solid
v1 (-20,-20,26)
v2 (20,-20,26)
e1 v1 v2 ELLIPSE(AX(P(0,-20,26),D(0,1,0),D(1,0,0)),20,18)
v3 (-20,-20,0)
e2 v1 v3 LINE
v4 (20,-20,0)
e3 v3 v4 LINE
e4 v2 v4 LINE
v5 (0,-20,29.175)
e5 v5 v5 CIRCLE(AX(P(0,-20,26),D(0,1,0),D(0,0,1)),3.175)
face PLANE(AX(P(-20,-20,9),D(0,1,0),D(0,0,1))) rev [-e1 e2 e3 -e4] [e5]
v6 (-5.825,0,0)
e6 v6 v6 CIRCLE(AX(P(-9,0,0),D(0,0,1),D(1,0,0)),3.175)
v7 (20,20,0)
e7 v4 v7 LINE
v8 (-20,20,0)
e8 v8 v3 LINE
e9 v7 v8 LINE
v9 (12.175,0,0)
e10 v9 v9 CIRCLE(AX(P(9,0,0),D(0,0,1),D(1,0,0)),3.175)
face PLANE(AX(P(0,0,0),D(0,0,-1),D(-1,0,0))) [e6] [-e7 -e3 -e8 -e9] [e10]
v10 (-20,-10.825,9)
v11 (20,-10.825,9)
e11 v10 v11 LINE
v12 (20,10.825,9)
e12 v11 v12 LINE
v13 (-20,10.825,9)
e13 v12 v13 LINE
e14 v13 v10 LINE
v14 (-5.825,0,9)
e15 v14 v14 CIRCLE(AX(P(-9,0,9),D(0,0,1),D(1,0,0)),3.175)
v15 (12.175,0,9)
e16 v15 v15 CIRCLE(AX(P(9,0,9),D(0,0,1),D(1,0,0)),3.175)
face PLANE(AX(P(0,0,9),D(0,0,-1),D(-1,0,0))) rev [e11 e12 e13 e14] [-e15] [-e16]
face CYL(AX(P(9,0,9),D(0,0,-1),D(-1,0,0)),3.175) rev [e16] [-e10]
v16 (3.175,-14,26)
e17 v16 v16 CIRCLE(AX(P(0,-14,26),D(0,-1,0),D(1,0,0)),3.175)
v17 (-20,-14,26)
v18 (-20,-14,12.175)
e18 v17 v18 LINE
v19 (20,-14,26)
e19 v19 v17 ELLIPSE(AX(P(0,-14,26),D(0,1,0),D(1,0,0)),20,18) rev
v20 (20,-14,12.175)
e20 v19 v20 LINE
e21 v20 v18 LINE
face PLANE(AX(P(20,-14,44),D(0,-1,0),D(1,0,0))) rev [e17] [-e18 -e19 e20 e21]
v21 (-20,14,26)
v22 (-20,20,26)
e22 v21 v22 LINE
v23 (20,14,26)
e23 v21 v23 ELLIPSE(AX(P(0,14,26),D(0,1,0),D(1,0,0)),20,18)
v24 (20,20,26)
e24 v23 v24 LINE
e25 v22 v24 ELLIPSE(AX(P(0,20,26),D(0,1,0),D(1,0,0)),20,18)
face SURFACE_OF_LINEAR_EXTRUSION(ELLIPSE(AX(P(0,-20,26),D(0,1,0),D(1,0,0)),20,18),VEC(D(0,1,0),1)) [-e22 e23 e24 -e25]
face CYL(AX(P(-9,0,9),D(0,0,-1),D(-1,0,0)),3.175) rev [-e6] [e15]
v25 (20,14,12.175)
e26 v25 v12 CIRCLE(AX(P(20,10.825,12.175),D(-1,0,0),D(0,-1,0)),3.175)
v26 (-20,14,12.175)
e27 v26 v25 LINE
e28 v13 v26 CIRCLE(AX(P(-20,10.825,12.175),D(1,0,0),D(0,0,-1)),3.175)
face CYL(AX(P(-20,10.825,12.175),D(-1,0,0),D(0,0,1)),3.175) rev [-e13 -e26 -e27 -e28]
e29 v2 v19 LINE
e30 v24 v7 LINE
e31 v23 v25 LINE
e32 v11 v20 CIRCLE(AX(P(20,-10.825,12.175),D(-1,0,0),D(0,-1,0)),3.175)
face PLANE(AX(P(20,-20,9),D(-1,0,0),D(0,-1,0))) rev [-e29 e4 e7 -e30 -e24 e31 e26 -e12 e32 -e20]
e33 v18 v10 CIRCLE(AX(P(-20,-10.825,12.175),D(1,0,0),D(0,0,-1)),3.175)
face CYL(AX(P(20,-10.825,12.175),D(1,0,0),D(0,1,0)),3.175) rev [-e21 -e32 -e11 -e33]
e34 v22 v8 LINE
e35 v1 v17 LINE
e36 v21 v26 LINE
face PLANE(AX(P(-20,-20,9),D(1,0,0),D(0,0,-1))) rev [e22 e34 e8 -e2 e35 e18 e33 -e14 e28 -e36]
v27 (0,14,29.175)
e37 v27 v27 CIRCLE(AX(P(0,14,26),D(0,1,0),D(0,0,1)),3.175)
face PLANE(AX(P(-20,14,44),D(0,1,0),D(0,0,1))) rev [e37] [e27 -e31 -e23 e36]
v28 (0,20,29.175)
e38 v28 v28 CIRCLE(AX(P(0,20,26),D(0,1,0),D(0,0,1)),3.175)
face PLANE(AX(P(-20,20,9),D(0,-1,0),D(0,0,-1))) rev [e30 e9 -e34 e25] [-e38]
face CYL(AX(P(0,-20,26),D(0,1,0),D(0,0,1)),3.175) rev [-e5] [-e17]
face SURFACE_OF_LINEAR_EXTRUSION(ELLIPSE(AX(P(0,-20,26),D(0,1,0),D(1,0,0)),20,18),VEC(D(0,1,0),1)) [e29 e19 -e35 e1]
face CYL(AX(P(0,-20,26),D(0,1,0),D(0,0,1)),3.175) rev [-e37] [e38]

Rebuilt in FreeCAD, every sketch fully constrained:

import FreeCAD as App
import Part
import Sketcher

V = App.Vector


def edges_at(feature, points):
    """Names of the edges that pass closest to the given points."""
    edges = feature.Shape.Edges
    near = lambda p: min(range(len(edges)), key=lambda i: edges[i].distToShape(Part.Vertex(*p))[0])
    return sorted({f"Edge{near(p) + 1}" for p in points})


def add_polygon(sketch, points):
    """Adds a closed chain of lines whose ends are joined by coincident constraints."""
    first, n = sketch.GeometryCount, len(points)
    for a, b in zip(points, points[1:] + points[:1]):
        sketch.addGeometry(Part.LineSegment(App.Vector(*a, 0), App.Vector(*b, 0)), False)
    for i in range(n):
        sketch.addConstraint(Sketcher.Constraint("Coincident", first + i, 2, first + (i + 1) % n, 1))

doc = App.newDocument("Part")
params = doc.addObject("Spreadsheet::Sheet", "Params")
for row, (alias, value) in enumerate([
    ("sketch1_diameter", "6.35 mm"),
    ("sketch1_width", "40 mm"),
    ("pad1_length", "9 mm"),
    ("sketch2_width", "40 mm"),
    ("sketch2_height", "6 mm"),
    ("pad2_length", "35 mm"),
    ("fillet_radius", "3.175 mm"),
    ("sketch3_diameter", "6.35 mm"),
], start=1):
    params.set(f"A{row}", alias)
    params.set(f"B{row}", "=" + value)
    params.setAlias(f"B{row}", alias)

body = doc.addObject("PartDesign::Body", "Body")

# Sketch on XY plane
sketch1 = body.newObject("Sketcher::SketchObject", "Sketch")
sketch1.AttachmentSupport = (doc.getObject("XY_Plane"), [""])
sketch1.MapMode = "FlatFace"
add_polygon(sketch1, [(-20, 20), (-20, -20), (20, -20), (20, 20)])  # lines 0-3
sketch1.addGeometry(Part.Circle(V(-9, 0, 0), V(0, 0, 1), 3.175), False)  # 4
sketch1.addGeometry(Part.Circle(V(9, 0, 0), V(0, 0, 1), 3.175), False)  # 5
sketch1.addConstraint([
    Sketcher.Constraint("Vertical", 0),
    Sketcher.Constraint("Horizontal", 1),
    Sketcher.Constraint("Vertical", 2),
    Sketcher.Constraint("Horizontal", 3),
    Sketcher.Constraint("Equal", 4, 5),
    Sketcher.Constraint("Symmetric", 4, 3, 5, 3, -1, 1),
    Sketcher.Constraint("Symmetric", 0, 2, 2, 2, -1, 1),
    Sketcher.Constraint("PointOnObject", 4, 3, -1),
    Sketcher.Constraint("Equal", 3, 0),
    Sketcher.Constraint("Diameter", 4, 6.35),
    Sketcher.Constraint("DistanceX", 1, 1, 1, 2, 40.0),
    Sketcher.Constraint("DistanceX", 4, 3, -1, 1, 9.0),
])
sketch1.setExpression("Constraints[13]", "Params.sketch1_diameter")
sketch1.setExpression("Constraints[14]", "Params.sketch1_width")
pad1 = body.newObject("PartDesign::Pad", "Pad")
pad1.Profile = sketch1
pad1.setExpression("Length", "Params.pad1_length")

# Sketch on XY plane
sketch2 = body.newObject("Sketcher::SketchObject", "Sketch001")
sketch2.AttachmentSupport = (doc.getObject("XY_Plane"), [""])
sketch2.MapMode = "FlatFace"
sketch2.AttachmentOffset = App.Placement(V(0, 0, 9), App.Rotation())
add_polygon(sketch2, [(-20, 20), (-20, 14), (20, 14), (20, 20)])  # lines 0-3
add_polygon(sketch2, [(-20, -14), (-20, -20), (20, -20), (20, -14)])  # lines 4-7
sketch2.addConstraint([
    Sketcher.Constraint("Vertical", 0),
    Sketcher.Constraint("Horizontal", 1),
    Sketcher.Constraint("Vertical", 2),
    Sketcher.Constraint("Horizontal", 3),
    Sketcher.Constraint("Vertical", 4),
    Sketcher.Constraint("Horizontal", 5),
    Sketcher.Constraint("Vertical", 6),
    Sketcher.Constraint("Horizontal", 7),
    Sketcher.Constraint("Symmetric", 2, 2, 4, 2, -1, 1),
    Sketcher.Constraint("Symmetric", 0, 2, 6, 2, -1, 1),
    Sketcher.Constraint("Vertical", 3, 2, 4, 2),
    Sketcher.Constraint("DistanceX", 1, 1, 1, 2, 40.0),
    Sketcher.Constraint("DistanceY", 0, 2, 0, 1, 6.0),
    Sketcher.Constraint("DistanceY", -1, 1, 0, 2, 14.0),
])
sketch2.setExpression("Constraints[19]", "Params.sketch2_width")
sketch2.setExpression("Constraints[20]", "Params.sketch2_height")
pad2 = body.newObject("PartDesign::Pad", "Pad001")
pad2.Profile = sketch2
pad2.setExpression("Length", "Params.pad2_length")
doc.recompute()

fillet = body.newObject("PartDesign::Fillet", "Fillet")
fillet.Base = (pad2, edges_at(pad2, [(0, -14, 9), (0, 14, 9)]))
fillet.setExpression("Radius", "Params.fillet_radius")

# Sketch on XZ plane
sketch3 = body.newObject("Sketcher::SketchObject", "Sketch002")
sketch3.AttachmentSupport = (doc.getObject("XZ_Plane"), [""])
sketch3.MapMode = "FlatFace"
sketch3.AttachmentOffset = App.Placement(V(0, 0, -20), App.Rotation())
sketch3.addGeometry([
    Part.LineSegment(V(-20, 44, 0), V(0, 44, 0)),  # 0
    Part.BSplineCurve([V(-20, 26, 0), V(-20, 44, 0), V(0, 44, 0)], [3, 3], [3.141592654, 4.71238898], False, 2, [1, 0.707106781, 1], False),  # 1
    Part.LineSegment(V(-20, 26, 0), V(-20, 44, 0)),  # 2
    Part.LineSegment(V(0, 44, 0), V(20, 44, 0)),  # 3
    Part.LineSegment(V(20, 44, 0), V(20, 26, 0)),  # 4
    Part.BSplineCurve([V(0, 44, 0), V(20, 44, 0), V(20, 26, 0)], [3, 3], [4.71238898, 6.283185307], False, 2, [1, 0.707106781, 1], False),  # 5
    Part.Circle(V(0, 26, 0), V(0, 0, 1), 3.175),  # 6
], False)
sketch3.addConstraint([
    Sketcher.Constraint("Block", 1),
    Sketcher.Constraint("Block", 5),
    Sketcher.Constraint("Coincident", 0, 2, 1, 2),
    Sketcher.Constraint("Coincident", 1, 1, 2, 1),
    Sketcher.Constraint("Coincident", 2, 2, 0, 1),
    Sketcher.Constraint("Coincident", 3, 2, 4, 1),
    Sketcher.Constraint("Coincident", 4, 2, 5, 2),
    Sketcher.Constraint("Coincident", 5, 1, 3, 1),
    Sketcher.Constraint("Horizontal", 0),
    Sketcher.Constraint("Vertical", 2),
    Sketcher.Constraint("Horizontal", 3),
    Sketcher.Constraint("Vertical", 4),
    Sketcher.Constraint("PointOnObject", 6, 3, -2),
    Sketcher.Constraint("Horizontal", 6, 3, 4, 2),
    Sketcher.Constraint("Diameter", 6, 6.35),
])
sketch3.setExpression("Constraints[14]", "Params.sketch3_diameter")
pocket1 = body.newObject("PartDesign::Pocket", "Pocket")
pocket1.Profile = sketch3
pocket1.Type = "ThroughAll"
pocket1.Reversed = True

doc.recompute()
